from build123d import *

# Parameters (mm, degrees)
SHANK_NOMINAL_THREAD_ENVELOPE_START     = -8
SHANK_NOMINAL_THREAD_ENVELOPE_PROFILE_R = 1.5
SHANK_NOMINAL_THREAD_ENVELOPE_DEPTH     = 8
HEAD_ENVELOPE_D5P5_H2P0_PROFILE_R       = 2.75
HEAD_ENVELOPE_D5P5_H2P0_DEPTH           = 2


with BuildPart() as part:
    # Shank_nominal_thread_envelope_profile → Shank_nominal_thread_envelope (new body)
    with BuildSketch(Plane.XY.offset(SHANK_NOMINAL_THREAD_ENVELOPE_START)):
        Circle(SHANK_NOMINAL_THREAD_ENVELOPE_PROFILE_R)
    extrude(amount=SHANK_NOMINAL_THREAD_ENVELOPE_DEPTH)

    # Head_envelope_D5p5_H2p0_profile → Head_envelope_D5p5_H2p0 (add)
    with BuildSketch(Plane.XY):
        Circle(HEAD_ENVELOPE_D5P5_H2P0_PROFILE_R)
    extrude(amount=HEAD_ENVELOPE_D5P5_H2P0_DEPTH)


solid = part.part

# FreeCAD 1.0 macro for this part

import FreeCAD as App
import Part
import Sketcher

V = App.Vector

doc = App.newDocument("Part")
body = doc.addObject("PartDesign::Body", "Body")

# Sketch on XY plane
sketch1 = body.newObject("Sketcher::SketchObject", "Sketch")
sketch1.AttachmentSupport = (doc.getObject("XY_Plane"), [""])
sketch1.MapMode = "FlatFace"
sketch1.AttachmentOffset = App.Placement(V(0, 0, -8), App.Rotation())
sketch1.addGeometry(Part.Circle(V(0, 0, 0), V(0, 0, 1), 1.5), False)
sketch1.addConstraint([
    Sketcher.Constraint("Coincident", 0, 3, -1, 1),
    Sketcher.Constraint("Diameter", 0, 3.0),
])
pad1 = body.newObject("PartDesign::Pad", "Pad")
pad1.Profile = sketch1
pad1.Length = 8

# Sketch on XY plane
sketch2 = body.newObject("Sketcher::SketchObject", "Sketch001")
sketch2.AttachmentSupport = (doc.getObject("XY_Plane"), [""])
sketch2.MapMode = "FlatFace"
sketch2.addGeometry(Part.Circle(V(0, 0, 0), V(0, 0, 1), 2.8), False)
sketch2.addConstraint([
    Sketcher.Constraint("Coincident", 0, 3, -1, 1),
    Sketcher.Constraint("Diameter", 0, 5.5),
])
pad2 = body.newObject("PartDesign::Pad", "Pad001")
pad2.Profile = sketch2
pad2.Length = 2

doc.recompute()
